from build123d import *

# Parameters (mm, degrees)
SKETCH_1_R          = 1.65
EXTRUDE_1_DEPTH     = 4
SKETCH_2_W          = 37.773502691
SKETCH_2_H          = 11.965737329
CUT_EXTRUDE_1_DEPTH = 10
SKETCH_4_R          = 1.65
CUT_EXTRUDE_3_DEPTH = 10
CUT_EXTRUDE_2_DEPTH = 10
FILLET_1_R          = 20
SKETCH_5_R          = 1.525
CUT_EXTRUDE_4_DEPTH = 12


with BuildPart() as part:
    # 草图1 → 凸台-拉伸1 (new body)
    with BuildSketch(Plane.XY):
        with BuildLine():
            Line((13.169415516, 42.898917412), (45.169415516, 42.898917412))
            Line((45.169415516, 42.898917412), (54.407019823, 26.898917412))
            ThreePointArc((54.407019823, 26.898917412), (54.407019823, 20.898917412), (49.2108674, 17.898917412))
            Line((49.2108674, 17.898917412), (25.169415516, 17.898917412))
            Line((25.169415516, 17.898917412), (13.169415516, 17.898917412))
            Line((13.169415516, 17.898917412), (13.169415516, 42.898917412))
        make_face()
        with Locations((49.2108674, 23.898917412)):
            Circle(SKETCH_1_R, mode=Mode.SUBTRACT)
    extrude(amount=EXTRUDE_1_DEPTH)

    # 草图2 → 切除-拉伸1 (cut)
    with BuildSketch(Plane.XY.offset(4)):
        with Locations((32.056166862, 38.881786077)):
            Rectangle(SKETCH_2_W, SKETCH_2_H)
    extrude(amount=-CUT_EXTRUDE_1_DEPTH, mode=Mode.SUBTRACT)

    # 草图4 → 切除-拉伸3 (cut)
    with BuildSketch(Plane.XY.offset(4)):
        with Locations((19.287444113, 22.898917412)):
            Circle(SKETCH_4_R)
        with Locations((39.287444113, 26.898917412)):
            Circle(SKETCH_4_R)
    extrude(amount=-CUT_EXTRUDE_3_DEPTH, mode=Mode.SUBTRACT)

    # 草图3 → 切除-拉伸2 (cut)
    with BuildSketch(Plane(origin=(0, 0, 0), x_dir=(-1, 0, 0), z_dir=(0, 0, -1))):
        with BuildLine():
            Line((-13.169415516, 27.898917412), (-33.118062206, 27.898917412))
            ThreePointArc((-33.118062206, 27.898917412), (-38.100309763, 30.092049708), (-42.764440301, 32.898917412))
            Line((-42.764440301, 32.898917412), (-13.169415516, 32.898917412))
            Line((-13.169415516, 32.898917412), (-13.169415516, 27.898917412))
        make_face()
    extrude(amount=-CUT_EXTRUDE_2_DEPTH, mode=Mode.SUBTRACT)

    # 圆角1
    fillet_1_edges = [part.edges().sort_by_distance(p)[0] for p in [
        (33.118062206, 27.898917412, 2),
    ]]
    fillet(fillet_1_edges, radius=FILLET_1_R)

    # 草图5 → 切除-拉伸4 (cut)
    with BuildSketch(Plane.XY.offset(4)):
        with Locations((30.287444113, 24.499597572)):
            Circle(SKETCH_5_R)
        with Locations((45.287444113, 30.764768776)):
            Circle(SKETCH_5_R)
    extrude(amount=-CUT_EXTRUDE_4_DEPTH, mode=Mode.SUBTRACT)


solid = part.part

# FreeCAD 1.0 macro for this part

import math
import FreeCAD as App
import Part
import Sketcher
Q = App.Units.Quantity


def edges_at(feature, points):
    """Names of the edges that pass closest to the given points."""
    edges = feature.Shape.Edges
    near = lambda p: min(range(len(edges)), key=lambda i: edges[i].distToShape(Part.Vertex(*p))[0])
    return sorted({f"Edge{near(p) + 1}" for p in points})

doc = App.newDocument("Part")
body = doc.addObject("PartDesign::Body", "Body")

sketch1 = body.newObject("Sketcher::SketchObject", "Sketch")
sketch1.AttachmentSupport = (doc.getObject("XY_Plane"), [""])
sketch1.MapMode = "FlatFace"
sketch1.addGeometry([
    Part.LineSegment(App.Vector(45.169416, 42.898917, 0), App.Vector(13.169416, 42.898917, 0)),
    Part.LineSegment(App.Vector(13.169416, 42.898917, 0), App.Vector(13.169416, 17.898917, 0)),
    Part.LineSegment(App.Vector(13.169416, 17.898917, 0), App.Vector(49.210867, 17.898917, 0)),
    Part.ArcOfCircle(Part.Circle(App.Vector(49.210867, 23.898917, 0), App.Vector(0, 0, 1), 6), math.radians(-90), math.radians(30)),
    Part.LineSegment(App.Vector(54.40702, 26.898917, 0), App.Vector(45.169416, 42.898917, 0)),
    Part.Circle(App.Vector(49.210867, 23.898917, 0), App.Vector(0, 0, 1), 1.65),
], False)
sketch1.addConstraint([
    Sketcher.Constraint("Coincident", 0, 2, 1, 1),
    Sketcher.Constraint("Coincident", 1, 2, 2, 1),
    Sketcher.Constraint("Tangent", 2, 2, 3, 1),
    Sketcher.Constraint("Tangent", 3, 2, 4, 1),
    Sketcher.Constraint("Coincident", 4, 2, 0, 1),
    Sketcher.Constraint("Horizontal", 0),
    Sketcher.Constraint("Vertical", 1),
    Sketcher.Constraint("Horizontal", 2),
    Sketcher.Constraint("Coincident", 5, 3, 3, 3),
    Sketcher.Constraint("Radius", 3, Q("6 mm")),
    Sketcher.Constraint("Diameter", 5, Q("3.3 mm")),
    Sketcher.Constraint("DistanceX", 0, 2, 0, 1, Q("32 mm")),
    Sketcher.Constraint("DistanceY", 1, 2, 1, 1, Q("25 mm")),
    Sketcher.Constraint("Angle", 4, Q("120 deg")),
    Sketcher.Constraint("DistanceX", -1, 1, 3, 2, Q("54.40702 mm")),
    Sketcher.Constraint("DistanceY", -1, 1, 3, 3, Q("23.898917 mm")),
])
pad1 = body.newObject("PartDesign::Pad", "Pad")
pad1.Profile = sketch1
pad1.Length = 4

sketch2 = body.newObject("Sketcher::SketchObject", "Sketch001")
sketch2.AttachmentSupport = (doc.getObject("XY_Plane"), [""])
sketch2.MapMode = "FlatFace"
sketch2.AttachmentOffset = App.Placement(App.Vector(0, 0, 4), App.Rotation())
sketch2.addGeometry([
    Part.LineSegment(App.Vector(13.169416, 44.864655, 0), App.Vector(13.169416, 32.898917, 0)),
    Part.LineSegment(App.Vector(13.169416, 32.898917, 0), App.Vector(50.942918, 32.898917, 0)),
    Part.LineSegment(App.Vector(50.942918, 32.898917, 0), App.Vector(50.942918, 44.864655, 0)),
    Part.LineSegment(App.Vector(50.942918, 44.864655, 0), App.Vector(13.169416, 44.864655, 0)),
], False)
sketch2.addConstraint([
    Sketcher.Constraint("Coincident", 0, 2, 1, 1),
    Sketcher.Constraint("Coincident", 1, 2, 2, 1),
    Sketcher.Constraint("Coincident", 2, 2, 3, 1),
    Sketcher.Constraint("Coincident", 3, 2, 0, 1),
    Sketcher.Constraint("Vertical", 0),
    Sketcher.Constraint("Horizontal", 1),
    Sketcher.Constraint("Vertical", 2),
    Sketcher.Constraint("Horizontal", 3),
    Sketcher.Constraint("DistanceX", 1, 1, 1, 2, Q("37.773503 mm")),
    Sketcher.Constraint("DistanceY", 0, 2, 0, 1, Q("11.965737 mm")),
    Sketcher.Constraint("DistanceX", -1, 1, 1, 2, Q("50.942918 mm")),
    Sketcher.Constraint("DistanceY", -1, 1, 0, 2, Q("32.898917 mm")),
])
pocket1 = body.newObject("PartDesign::Pocket", "Pocket")
pocket1.Profile = sketch2
pocket1.Length = 10

sketch3 = body.newObject("Sketcher::SketchObject", "Sketch002")
sketch3.AttachmentSupport = (doc.getObject("XY_Plane"), [""])
sketch3.MapMode = "FlatFace"
sketch3.AttachmentOffset = App.Placement(App.Vector(0, 0, 4), App.Rotation())
sketch3.addGeometry([
    Part.Circle(App.Vector(19.287444, 22.898917, 0), App.Vector(0, 0, 1), 1.65),
    Part.Circle(App.Vector(39.287444, 26.898917, 0), App.Vector(0, 0, 1), 1.65),
], False)
sketch3.addConstraint([
    Sketcher.Constraint("Equal", 0, 1),
    Sketcher.Constraint("Diameter", 0, Q("3.3 mm")),
    Sketcher.Constraint("DistanceX", 0, 3, 1, 3, Q("20 mm")),
    Sketcher.Constraint("DistanceY", 0, 3, 1, 3, Q("4 mm")),
    Sketcher.Constraint("DistanceX", -1, 1, 0, 3, Q("19.287444 mm")),
    Sketcher.Constraint("DistanceY", -1, 1, 0, 3, Q("22.898917 mm")),
])
pocket2 = body.newObject("PartDesign::Pocket", "Pocket001")
pocket2.Profile = sketch3
pocket2.Length = 10

sketch4 = body.newObject("Sketcher::SketchObject", "Sketch003")
sketch4.AttachmentSupport = (doc.getObject("XY_Plane"), [""])
sketch4.MapMode = "FlatFace"
sketch4.addGeometry([
    Part.LineSegment(App.Vector(33.118062, 27.898917, 0), App.Vector(13.169416, 27.898917, 0)),
    Part.LineSegment(App.Vector(13.169416, 27.898917, 0), App.Vector(13.169416, 32.898917, 0)),
    Part.LineSegment(App.Vector(13.169416, 32.898917, 0), App.Vector(42.76444, 32.898917, 0)),
    Part.ArcOfCircle(Part.Circle(App.Vector(18.373922, 68.149688, 0), App.Vector(0, 0, 1), 42.866236), math.radians(-69.881863), math.radians(-55.32008)),
], False)
sketch4.addConstraint([
    Sketcher.Constraint("Coincident", 0, 2, 1, 1),
    Sketcher.Constraint("Coincident", 1, 2, 2, 1),
    Sketcher.Constraint("Coincident", 2, 2, 3, 2),
    Sketcher.Constraint("Coincident", 3, 1, 0, 1),
    Sketcher.Constraint("Horizontal", 0),
    Sketcher.Constraint("Vertical", 1),
    Sketcher.Constraint("Horizontal", 2),
    Sketcher.Constraint("DistanceY", 1, 1, 1, 2, Q("5 mm")),
    Sketcher.Constraint("Radius", 3, Q("42.866236 mm")),
    Sketcher.Constraint("DistanceX", 0, 2, 0, 1, Q("19.948647 mm")),
    Sketcher.Constraint("DistanceX", 2, 1, 2, 2, Q("29.595025 mm")),
    Sketcher.Constraint("DistanceY", -1, 1, 3, 3, Q("68.149688 mm")),
    Sketcher.Constraint("DistanceX", -1, 1, 2, 2, Q("42.76444 mm")),
])
pocket3 = body.newObject("PartDesign::Pocket", "Pocket002")
pocket3.Profile = sketch4
pocket3.Length = 10
pocket3.Reversed = True
doc.recompute()

fillet = body.newObject("PartDesign::Fillet", "Fillet")
fillet.Base = (pocket3, edges_at(pocket3, [(33.118, 27.899, 2)]))
fillet.Radius = 20

sketch5 = body.newObject("Sketcher::SketchObject", "Sketch004")
sketch5.AttachmentSupport = (doc.getObject("XY_Plane"), [""])
sketch5.MapMode = "FlatFace"
sketch5.AttachmentOffset = App.Placement(App.Vector(0, 0, 4), App.Rotation())
sketch5.addGeometry([
    Part.Circle(App.Vector(30.287444, 24.499598, 0), App.Vector(0, 0, 1), 1.525),
    Part.Circle(App.Vector(45.287444, 30.764769, 0), App.Vector(0, 0, 1), 1.525),
], False)
sketch5.addConstraint([
    Sketcher.Constraint("Equal", 0, 1),
    Sketcher.Constraint("Diameter", 0, Q("3.05 mm")),
    Sketcher.Constraint("DistanceX", 0, 3, 1, 3, Q("15 mm")),
    Sketcher.Constraint("DistanceY", -1, 1, 1, 3, Q("30.764769 mm")),
    Sketcher.Constraint("DistanceY", 0, 3, 1, 3, Q("6.265171 mm")),
    Sketcher.Constraint("DistanceX", -1, 1, 0, 3, Q("30.287444 mm")),
])
pocket4 = body.newObject("PartDesign::Pocket", "Pocket003")
pocket4.Profile = sketch5
pocket4.Length = 12

doc.recompute()
